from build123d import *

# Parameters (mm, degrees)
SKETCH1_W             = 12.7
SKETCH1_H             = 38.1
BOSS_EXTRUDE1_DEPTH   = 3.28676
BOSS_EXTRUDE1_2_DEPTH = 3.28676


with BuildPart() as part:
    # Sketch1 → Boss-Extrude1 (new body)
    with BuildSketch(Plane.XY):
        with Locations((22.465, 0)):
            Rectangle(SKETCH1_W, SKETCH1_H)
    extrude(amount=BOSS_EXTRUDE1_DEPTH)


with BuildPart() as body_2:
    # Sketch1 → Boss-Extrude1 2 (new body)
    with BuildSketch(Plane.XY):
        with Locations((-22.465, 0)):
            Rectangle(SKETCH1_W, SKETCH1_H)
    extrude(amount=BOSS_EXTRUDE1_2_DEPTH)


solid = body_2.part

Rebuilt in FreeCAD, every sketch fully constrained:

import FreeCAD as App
import Part
import Sketcher
Q = App.Units.Quantity

doc = App.newDocument("Part")
params = doc.addObject("Spreadsheet::Sheet", "Params")
for row, (alias, value) in enumerate([
    ("sketch1_width", "0.5 in"),
    ("sketch1_height", "1.5 in"),
    ("pad1_length", "0.1294 in"),
    ("sketch2_width", "0.5 in"),
    ("sketch2_height", "1.5 in"),
    ("pad2_length", "0.1294 in"),
], start=1):
    params.set(f"A{row}", alias)
    params.set(f"B{row}", "=" + value)
    params.setAlias(f"B{row}", alias)

body = doc.addObject("PartDesign::Body", "Body")

# Sketch on XY plane
sketch1 = body.newObject("Sketcher::SketchObject", "Sketch")
sketch1.AttachmentSupport = (doc.getObject("XY_Plane"), [""])
sketch1.MapMode = "FlatFace"
sketch1.addGeometry([
    Part.LineSegment(App.Vector(16, 19, 0), App.Vector(16, -19, 0)),
    Part.LineSegment(App.Vector(16, -19, 0), App.Vector(29, -19, 0)),
    Part.LineSegment(App.Vector(29, -19, 0), App.Vector(29, 19, 0)),
    Part.LineSegment(App.Vector(29, 19, 0), App.Vector(16, 19, 0)),
], False)
sketch1.addConstraint([
    Sketcher.Constraint("Coincident", 0, 2, 1, 1),
    Sketcher.Constraint("Coincident", 1, 2, 2, 1),
    Sketcher.Constraint("Coincident", 2, 2, 3, 1),
    Sketcher.Constraint("Coincident", 3, 2, 0, 1),
    Sketcher.Constraint("Vertical", 0),
    Sketcher.Constraint("Horizontal", 1),
    Sketcher.Constraint("Vertical", 2),
    Sketcher.Constraint("Horizontal", 3),
    Sketcher.Constraint("DistanceX", 1, 1, 1, 2, Q("0.5 in")),
    Sketcher.Constraint("DistanceY", 0, 2, 0, 1, Q("1.5 in")),
    Sketcher.Constraint("DistanceY", 0, 2, -1, 1, Q("0.75 in")),
    Sketcher.Constraint("DistanceX", -1, 1, 0, 2, Q("16.115 mm")),
])
sketch1.setExpression("Constraints[8]", "Params.sketch1_width")
sketch1.setExpression("Constraints[9]", "Params.sketch1_height")
pad1 = body.newObject("PartDesign::Pad", "Pad")
pad1.Profile = sketch1
pad1.setExpression("Length", "Params.pad1_length")
body2 = doc.addObject("PartDesign::Body", "Body001")

# Sketch on XY plane
sketch2 = body2.newObject("Sketcher::SketchObject", "Sketch001")
sketch2.AttachmentSupport = (doc.getObject("XY_Plane001"), [""])
sketch2.MapMode = "FlatFace"
sketch2.addGeometry([
    Part.LineSegment(App.Vector(-29, 19, 0), App.Vector(-29, -19, 0)),
    Part.LineSegment(App.Vector(-29, -19, 0), App.Vector(-16, -19, 0)),
    Part.LineSegment(App.Vector(-16, -19, 0), App.Vector(-16, 19, 0)),
    Part.LineSegment(App.Vector(-16, 19, 0), App.Vector(-29, 19, 0)),
], False)
sketch2.addConstraint([
    Sketcher.Constraint("Coincident", 0, 2, 1, 1),
    Sketcher.Constraint("Coincident", 1, 2, 2, 1),
    Sketcher.Constraint("Coincident", 2, 2, 3, 1),
    Sketcher.Constraint("Coincident", 3, 2, 0, 1),
    Sketcher.Constraint("Vertical", 0),
    Sketcher.Constraint("Horizontal", 1),
    Sketcher.Constraint("Vertical", 2),
    Sketcher.Constraint("Horizontal", 3),
    Sketcher.Constraint("DistanceX", 1, 1, 1, 2, Q("0.5 in")),
    Sketcher.Constraint("DistanceY", 0, 2, 0, 1, Q("1.5 in")),
    Sketcher.Constraint("DistanceY", 0, 2, -1, 1, Q("0.75 in")),
    Sketcher.Constraint("DistanceX", 0, 2, -1, 1, Q("28.815 mm")),
])
sketch2.setExpression("Constraints[8]", "Params.sketch2_width")
sketch2.setExpression("Constraints[9]", "Params.sketch2_height")
pad2 = body2.newObject("PartDesign::Pad", "Pad001")
pad2.Profile = sketch2
pad2.setExpression("Length", "Params.pad2_length")
body.Visibility = False

doc.recompute()
